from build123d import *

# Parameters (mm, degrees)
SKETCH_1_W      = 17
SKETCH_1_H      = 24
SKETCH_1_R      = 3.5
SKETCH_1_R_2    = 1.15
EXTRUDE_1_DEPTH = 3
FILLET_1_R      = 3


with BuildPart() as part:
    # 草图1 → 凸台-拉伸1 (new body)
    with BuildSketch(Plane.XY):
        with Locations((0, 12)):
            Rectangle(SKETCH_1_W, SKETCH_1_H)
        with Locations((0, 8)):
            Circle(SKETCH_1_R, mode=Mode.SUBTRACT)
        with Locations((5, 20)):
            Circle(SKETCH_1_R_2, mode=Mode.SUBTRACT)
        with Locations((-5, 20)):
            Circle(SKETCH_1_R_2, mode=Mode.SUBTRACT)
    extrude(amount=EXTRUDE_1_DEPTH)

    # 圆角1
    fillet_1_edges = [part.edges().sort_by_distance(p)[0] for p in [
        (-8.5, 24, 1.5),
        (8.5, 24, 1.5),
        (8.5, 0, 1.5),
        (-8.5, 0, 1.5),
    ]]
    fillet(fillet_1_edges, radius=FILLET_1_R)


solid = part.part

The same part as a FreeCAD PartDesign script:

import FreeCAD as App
import Part
import Sketcher
Q = App.Units.Quantity


def edges_at(feature, points):
    """Names of the edges that pass closest to the given points."""
    edges = feature.Shape.Edges
    near = lambda p: min(range(len(edges)), key=lambda i: edges[i].distToShape(Part.Vertex(*p))[0])
    return sorted({f"Edge{near(p) + 1}" for p in points})

doc = App.newDocument("Part")
params = doc.addObject("Spreadsheet::Sheet", "Params")
for row, (alias, value) in enumerate([
    ("sketch1_diameter", "7 mm"),
    ("sketch1_diameter2", "2.3 mm"),
    ("sketch1_width", "17 mm"),
    ("sketch1_height", "24 mm"),
    ("pad1_length", "3 mm"),
    ("fillet_radius", "3 mm"),
], start=1):
    params.set(f"A{row}", alias)
    params.set(f"B{row}", "=" + value)
    params.setAlias(f"B{row}", alias)

body = doc.addObject("PartDesign::Body", "Body")

# Sketch on XY plane
sketch1 = body.newObject("Sketcher::SketchObject", "Sketch")
sketch1.AttachmentSupport = (doc.getObject("XY_Plane"), [""])
sketch1.MapMode = "FlatFace"
sketch1.addGeometry(Part.LineSegment(App.Vector(-8.5, 24, 0), App.Vector(-8.5, 0, 0)), False)
sketch1.addGeometry(Part.LineSegment(App.Vector(-8.5, 0, 0), App.Vector(8.5, 0, 0)), False)
sketch1.addGeometry(Part.LineSegment(App.Vector(8.5, 0, 0), App.Vector(8.5, 24, 0)), False)
sketch1.addGeometry(Part.LineSegment(App.Vector(8.5, 24, 0), App.Vector(-8.5, 24, 0)), False)
sketch1.addGeometry(Part.Circle(App.Vector(0, 8, 0), App.Vector(0, 0, 1), 3.5), False)
sketch1.addGeometry(Part.Circle(App.Vector(-5, 20, 0), App.Vector(0, 0, 1), 1.15), False)
sketch1.addGeometry(Part.Circle(App.Vector(5, 20, 0), App.Vector(0, 0, 1), 1.15), False)
sketch1.addConstraint(Sketcher.Constraint("Coincident", 0, 2, 1, 1))
sketch1.addConstraint(Sketcher.Constraint("Coincident", 1, 2, 2, 1))
sketch1.addConstraint(Sketcher.Constraint("Coincident", 2, 2, 3, 1))
sketch1.addConstraint(Sketcher.Constraint("Coincident", 3, 2, 0, 1))
sketch1.addConstraint(Sketcher.Constraint("Vertical", 0))
sketch1.addConstraint(Sketcher.Constraint("Horizontal", 1))
sketch1.addConstraint(Sketcher.Constraint("Vertical", 2))
sketch1.addConstraint(Sketcher.Constraint("Horizontal", 3))
sketch1.addConstraint(Sketcher.Constraint("Equal", 5, 6))
sketch1.addConstraint(Sketcher.Constraint("Symmetric", 0, 2, 1, 2, -1, 1))
sketch1.addConstraint(Sketcher.Constraint("Symmetric", 5, 3, 6, 3, -2))
sketch1.addConstraint(Sketcher.Constraint("PointOnObject", 4, 3, -2))
sketch1.addConstraint(Sketcher.Constraint("Diameter", 4, Q("7 mm")))
sketch1.addConstraint(Sketcher.Constraint("Diameter", 5, Q("2.3 mm")))
sketch1.addConstraint(Sketcher.Constraint("DistanceX", 1, 1, 1, 2, Q("17 mm")))
sketch1.addConstraint(Sketcher.Constraint("DistanceY", 0, 2, 0, 1, Q("24 mm")))
sketch1.addConstraint(Sketcher.Constraint("DistanceY", -1, 1, 4, 3, Q("8 mm")))
sketch1.addConstraint(Sketcher.Constraint("DistanceX", 5, 3, -1, 1, Q("5 mm")))
sketch1.addConstraint(Sketcher.Constraint("DistanceY", -1, 1, 5, 3, Q("20 mm")))
sketch1.setExpression("Constraints[12]", "Params.sketch1_diameter")
sketch1.setExpression("Constraints[13]", "Params.sketch1_diameter2")
sketch1.setExpression("Constraints[14]", "Params.sketch1_width")
sketch1.setExpression("Constraints[15]", "Params.sketch1_height")
pad1 = body.newObject("PartDesign::Pad", "Pad")
pad1.Profile = sketch1
pad1.setExpression("Length", "Params.pad1_length")
doc.recompute()

fillet = body.newObject("PartDesign::Fillet", "Fillet")
fillet.Base = (pad1, edges_at(pad1, [
    (-8.5, 24, 1.5),
    (8.5, 24, 1.5),
    (8.5, 0, 1.5),
    (-8.5, 0, 1.5),
]))
fillet.setExpression("Radius", "Params.fillet_radius")

doc.recompute()
